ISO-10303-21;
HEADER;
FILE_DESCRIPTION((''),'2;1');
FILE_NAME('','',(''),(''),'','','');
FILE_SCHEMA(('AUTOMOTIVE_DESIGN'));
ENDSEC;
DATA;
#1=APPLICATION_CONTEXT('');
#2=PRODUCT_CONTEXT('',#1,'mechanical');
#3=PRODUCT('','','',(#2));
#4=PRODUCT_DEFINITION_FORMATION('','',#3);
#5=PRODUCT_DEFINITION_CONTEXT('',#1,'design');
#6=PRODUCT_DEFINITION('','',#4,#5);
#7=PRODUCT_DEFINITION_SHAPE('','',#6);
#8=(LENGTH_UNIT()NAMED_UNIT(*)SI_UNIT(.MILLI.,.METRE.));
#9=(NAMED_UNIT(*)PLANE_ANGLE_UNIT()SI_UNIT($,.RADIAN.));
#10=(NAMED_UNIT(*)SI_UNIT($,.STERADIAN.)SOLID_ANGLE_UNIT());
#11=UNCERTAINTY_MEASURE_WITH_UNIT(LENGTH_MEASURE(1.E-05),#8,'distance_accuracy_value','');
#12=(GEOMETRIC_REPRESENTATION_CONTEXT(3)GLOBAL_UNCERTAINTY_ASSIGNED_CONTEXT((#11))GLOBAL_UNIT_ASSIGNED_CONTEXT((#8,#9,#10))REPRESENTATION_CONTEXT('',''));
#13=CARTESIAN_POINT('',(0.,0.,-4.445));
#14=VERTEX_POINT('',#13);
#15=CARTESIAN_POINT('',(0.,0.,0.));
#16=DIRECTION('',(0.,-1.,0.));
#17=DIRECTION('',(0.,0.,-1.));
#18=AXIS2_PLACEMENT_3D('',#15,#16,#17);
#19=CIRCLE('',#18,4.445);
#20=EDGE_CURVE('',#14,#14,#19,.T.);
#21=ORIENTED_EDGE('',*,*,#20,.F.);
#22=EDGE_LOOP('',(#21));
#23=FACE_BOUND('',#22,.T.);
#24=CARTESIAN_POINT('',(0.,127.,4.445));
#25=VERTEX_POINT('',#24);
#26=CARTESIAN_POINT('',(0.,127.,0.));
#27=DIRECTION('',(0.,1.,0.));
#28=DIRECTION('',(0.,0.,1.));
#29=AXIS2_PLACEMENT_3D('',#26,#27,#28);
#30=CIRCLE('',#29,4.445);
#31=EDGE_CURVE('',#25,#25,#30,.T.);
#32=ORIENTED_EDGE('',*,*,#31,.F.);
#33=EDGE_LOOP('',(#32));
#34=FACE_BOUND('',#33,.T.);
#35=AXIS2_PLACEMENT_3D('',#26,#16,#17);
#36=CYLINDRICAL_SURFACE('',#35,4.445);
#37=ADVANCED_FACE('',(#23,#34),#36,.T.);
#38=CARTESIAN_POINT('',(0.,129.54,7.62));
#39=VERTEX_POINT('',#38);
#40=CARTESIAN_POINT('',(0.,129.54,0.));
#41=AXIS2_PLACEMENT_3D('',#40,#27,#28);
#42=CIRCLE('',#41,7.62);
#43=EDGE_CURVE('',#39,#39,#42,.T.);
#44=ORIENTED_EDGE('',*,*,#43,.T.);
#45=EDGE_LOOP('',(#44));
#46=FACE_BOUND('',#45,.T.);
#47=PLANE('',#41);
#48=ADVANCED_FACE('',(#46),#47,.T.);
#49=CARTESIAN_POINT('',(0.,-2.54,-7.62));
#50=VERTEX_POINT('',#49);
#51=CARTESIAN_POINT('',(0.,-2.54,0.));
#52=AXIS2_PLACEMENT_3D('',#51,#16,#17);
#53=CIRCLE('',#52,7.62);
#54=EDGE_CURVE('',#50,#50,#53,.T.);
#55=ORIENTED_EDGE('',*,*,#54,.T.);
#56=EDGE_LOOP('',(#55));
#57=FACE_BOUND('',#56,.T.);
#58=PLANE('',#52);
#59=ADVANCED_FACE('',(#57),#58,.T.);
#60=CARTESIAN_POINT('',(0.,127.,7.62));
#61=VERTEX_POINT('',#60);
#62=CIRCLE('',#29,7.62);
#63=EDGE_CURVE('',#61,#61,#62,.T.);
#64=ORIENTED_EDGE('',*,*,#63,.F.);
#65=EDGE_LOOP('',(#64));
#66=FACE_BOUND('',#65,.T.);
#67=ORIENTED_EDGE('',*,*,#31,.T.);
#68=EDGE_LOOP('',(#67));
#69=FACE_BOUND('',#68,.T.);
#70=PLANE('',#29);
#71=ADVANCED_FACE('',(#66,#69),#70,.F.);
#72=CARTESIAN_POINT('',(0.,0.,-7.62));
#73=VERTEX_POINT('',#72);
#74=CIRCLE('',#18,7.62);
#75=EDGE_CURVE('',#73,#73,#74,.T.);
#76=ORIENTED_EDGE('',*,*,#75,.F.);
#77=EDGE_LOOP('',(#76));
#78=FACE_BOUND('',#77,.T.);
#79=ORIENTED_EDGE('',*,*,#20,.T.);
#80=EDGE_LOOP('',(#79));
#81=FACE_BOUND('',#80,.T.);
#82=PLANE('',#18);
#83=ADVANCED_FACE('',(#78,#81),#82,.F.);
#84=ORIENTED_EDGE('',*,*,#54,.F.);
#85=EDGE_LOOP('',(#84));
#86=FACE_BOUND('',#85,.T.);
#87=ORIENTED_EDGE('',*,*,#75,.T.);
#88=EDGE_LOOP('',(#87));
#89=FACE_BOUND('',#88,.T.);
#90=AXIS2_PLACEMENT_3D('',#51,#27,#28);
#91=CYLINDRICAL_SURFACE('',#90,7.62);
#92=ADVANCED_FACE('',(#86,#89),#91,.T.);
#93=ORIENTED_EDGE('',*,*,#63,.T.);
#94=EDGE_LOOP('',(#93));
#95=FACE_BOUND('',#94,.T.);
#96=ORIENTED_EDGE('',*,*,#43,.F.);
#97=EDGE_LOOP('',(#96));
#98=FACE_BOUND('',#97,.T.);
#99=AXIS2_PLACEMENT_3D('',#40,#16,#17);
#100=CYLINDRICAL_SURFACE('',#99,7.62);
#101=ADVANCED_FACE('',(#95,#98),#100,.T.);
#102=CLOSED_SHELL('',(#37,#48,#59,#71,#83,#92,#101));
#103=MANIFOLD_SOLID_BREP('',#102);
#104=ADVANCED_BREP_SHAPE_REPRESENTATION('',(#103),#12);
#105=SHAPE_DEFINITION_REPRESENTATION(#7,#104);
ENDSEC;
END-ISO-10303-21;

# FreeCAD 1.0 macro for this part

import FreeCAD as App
import Part
import Sketcher
from FreeCAD import Vector
Q = App.Units.Quantity

doc = App.newDocument("Part")
body = doc.addObject("PartDesign::Body", "Body")

sketch1 = body.newObject("Sketcher::SketchObject", "Sketch")
sketch1.AttachmentSupport = (doc.getObject("XZ_Plane"), [""])
sketch1.MapMode = "FlatFace"
sketch1.addGeometry(Part.Circle(Vector(0, 0, 0), Vector(0, 0, 1), 4.4), False)
sketch1.addConstraint(Sketcher.Constraint("Coincident", 0, 3, -1, 1))
sketch1.addConstraint(Sketcher.Constraint("Diameter", 0, Q("0.35 in")))
pad1 = body.newObject("PartDesign::Pad", "Pad")
pad1.Profile = sketch1
pad1.Length = Q("5 in")
pad1.Reversed = True

sketch2 = body.newObject("Sketcher::SketchObject", "Sketch001")
sketch2.AttachmentSupport = (doc.getObject("XZ_Plane"), [""])
sketch2.MapMode = "FlatFace"
sketch2.addGeometry(Part.Circle(Vector(0, 0, 0), Vector(0, 0, 1), 8), False)
sketch2.addConstraint(Sketcher.Constraint("Coincident", 0, 3, -1, 1))
sketch2.addConstraint(Sketcher.Constraint("Diameter", 0, Q("0.6 in")))
pad2 = body.newObject("PartDesign::Pad", "Pad001")
pad2.Profile = sketch2
pad2.Length = Q("0.1 in")

sketch3 = body.newObject("Sketcher::SketchObject", "Sketch002")
sketch3.AttachmentSupport = (doc.getObject("XZ_Plane"), [""])
sketch3.MapMode = "FlatFace"
sketch3.AttachmentOffset = App.Placement(Vector(0, 0, -5.1 * 25.4), App.Rotation())
sketch3.addGeometry(Part.Circle(Vector(0, 0, 0), Vector(0, 0, 1), 8), False)
sketch3.addConstraint(Sketcher.Constraint("Coincident", 0, 3, -1, 1))
sketch3.addConstraint(Sketcher.Constraint("Diameter", 0, Q("0.6 in")))
pad3 = body.newObject("PartDesign::Pad", "Pad002")
pad3.Profile = sketch3
pad3.Length = Q("0.1 in")

doc.recompute()
